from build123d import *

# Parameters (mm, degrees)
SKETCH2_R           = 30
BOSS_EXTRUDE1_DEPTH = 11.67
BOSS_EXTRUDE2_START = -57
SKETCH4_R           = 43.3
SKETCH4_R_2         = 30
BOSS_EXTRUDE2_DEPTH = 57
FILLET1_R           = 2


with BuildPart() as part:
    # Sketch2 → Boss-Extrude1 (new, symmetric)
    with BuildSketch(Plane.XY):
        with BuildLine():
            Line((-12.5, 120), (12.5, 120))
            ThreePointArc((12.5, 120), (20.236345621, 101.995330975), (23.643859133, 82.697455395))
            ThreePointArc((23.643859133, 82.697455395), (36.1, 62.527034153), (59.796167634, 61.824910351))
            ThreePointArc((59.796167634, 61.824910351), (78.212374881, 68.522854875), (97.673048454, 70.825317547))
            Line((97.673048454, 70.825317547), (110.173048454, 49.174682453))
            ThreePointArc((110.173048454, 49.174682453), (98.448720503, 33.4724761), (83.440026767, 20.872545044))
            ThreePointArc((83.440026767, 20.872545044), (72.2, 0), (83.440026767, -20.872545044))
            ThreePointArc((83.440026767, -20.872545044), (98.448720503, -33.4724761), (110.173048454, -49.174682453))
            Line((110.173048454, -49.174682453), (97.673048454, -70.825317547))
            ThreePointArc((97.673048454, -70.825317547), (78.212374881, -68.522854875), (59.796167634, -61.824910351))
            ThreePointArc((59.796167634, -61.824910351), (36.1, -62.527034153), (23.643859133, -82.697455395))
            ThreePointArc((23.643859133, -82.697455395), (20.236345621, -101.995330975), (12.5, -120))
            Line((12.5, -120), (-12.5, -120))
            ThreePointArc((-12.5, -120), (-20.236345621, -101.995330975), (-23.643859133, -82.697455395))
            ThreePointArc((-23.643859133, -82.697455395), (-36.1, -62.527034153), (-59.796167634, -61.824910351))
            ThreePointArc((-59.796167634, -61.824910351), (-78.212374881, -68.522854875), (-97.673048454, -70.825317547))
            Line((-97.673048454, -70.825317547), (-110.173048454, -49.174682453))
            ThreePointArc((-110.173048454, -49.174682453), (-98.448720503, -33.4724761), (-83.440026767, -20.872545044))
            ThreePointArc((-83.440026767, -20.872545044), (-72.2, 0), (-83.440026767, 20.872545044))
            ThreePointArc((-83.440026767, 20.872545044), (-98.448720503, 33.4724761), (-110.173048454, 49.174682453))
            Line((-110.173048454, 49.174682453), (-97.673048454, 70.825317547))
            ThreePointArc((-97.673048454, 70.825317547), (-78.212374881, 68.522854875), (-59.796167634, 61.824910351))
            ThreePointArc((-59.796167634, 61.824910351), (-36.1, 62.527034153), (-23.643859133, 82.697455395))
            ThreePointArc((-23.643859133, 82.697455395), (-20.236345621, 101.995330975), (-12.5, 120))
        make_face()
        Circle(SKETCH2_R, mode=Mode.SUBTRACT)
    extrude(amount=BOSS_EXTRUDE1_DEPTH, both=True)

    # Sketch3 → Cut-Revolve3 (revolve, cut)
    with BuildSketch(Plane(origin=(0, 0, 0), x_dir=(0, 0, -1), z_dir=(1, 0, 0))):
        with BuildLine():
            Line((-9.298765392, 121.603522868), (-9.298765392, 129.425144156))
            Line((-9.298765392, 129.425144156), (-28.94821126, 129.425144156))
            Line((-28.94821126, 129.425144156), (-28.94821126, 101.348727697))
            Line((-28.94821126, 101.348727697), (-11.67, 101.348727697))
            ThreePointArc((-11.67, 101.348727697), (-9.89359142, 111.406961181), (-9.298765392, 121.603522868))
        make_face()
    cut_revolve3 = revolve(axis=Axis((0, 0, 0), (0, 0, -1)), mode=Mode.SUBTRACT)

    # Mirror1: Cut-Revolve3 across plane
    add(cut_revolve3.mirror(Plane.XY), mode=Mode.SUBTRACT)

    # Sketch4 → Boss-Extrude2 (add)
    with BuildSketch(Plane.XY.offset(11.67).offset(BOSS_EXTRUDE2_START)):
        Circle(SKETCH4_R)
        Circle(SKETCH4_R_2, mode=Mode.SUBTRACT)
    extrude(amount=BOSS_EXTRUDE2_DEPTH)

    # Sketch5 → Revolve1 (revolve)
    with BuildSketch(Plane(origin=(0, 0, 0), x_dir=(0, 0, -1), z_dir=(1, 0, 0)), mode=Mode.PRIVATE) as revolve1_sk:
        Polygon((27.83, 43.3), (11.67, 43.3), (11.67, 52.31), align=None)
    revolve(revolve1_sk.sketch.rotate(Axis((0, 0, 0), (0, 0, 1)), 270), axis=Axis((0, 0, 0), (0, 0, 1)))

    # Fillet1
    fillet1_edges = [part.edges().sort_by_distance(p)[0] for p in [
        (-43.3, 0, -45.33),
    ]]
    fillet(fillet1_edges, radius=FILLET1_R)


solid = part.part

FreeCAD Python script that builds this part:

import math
import FreeCAD as App
import Part
import Sketcher
from FreeCAD import Vector
Q = App.Units.Quantity


def edges_at(feature, points):
    """Names of the edges that pass closest to the given points."""
    edges = feature.Shape.Edges
    near = lambda p: min(range(len(edges)), key=lambda i: edges[i].distToShape(Part.Vertex(*p))[0])
    return sorted({f"Edge{near(p) + 1}" for p in points})

doc = App.newDocument("Part")
body = doc.addObject("PartDesign::Body", "Body")

sketch1 = body.newObject("Sketcher::SketchObject", "Sketch")
sketch1.AttachmentSupport = (doc.getObject("XY_Plane"), [""])
sketch1.MapMode = "FlatFace"
sketch1.addGeometry(Part.LineSegment(Vector(12, 120, 0), Vector(-12, 120, 0)), False)
sketch1.addGeometry(Part.ArcOfCircle(Part.Circle(Vector(61, 78, 0), Vector(0, 0, 1), 85), math.radians(150), math.radians(177)), False)
sketch1.addGeometry(Part.ArcOfCircle(Part.Circle(Vector(-49, 84, 0), Vector(0, 0, 1), 25), math.radians(-117), math.radians(-3)), False)
sketch1.addGeometry(Part.ArcOfCircle(Part.Circle(Vector(-98, -14, 0), Vector(0, 0, 1), 85), math.radians(63), math.radians(90)), False)
sketch1.addGeometry(Part.LineSegment(Vector(-98, 71, 0), Vector(-110, 49, 0)), False)
sketch1.addGeometry(Part.ArcOfCircle(Part.Circle(Vector(-37, 92, 0), Vector(0, 0, 1), 85), math.radians(-150), math.radians(-123)), False)
sketch1.addGeometry(Part.ArcOfCircle(Part.Circle(Vector(-97, 0, 0), Vector(0, 0, 1), 25), math.radians(-57), math.radians(57)), False)
sketch1.addGeometry(Part.ArcOfCircle(Part.Circle(Vector(-37, -92, 0), Vector(0, 0, 1), 85), math.radians(123), math.radians(150)), False)
sketch1.addGeometry(Part.LineSegment(Vector(-110, -49, 0), Vector(-98, -71, 0)), False)
sketch1.addGeometry(Part.ArcOfCircle(Part.Circle(Vector(-98, 14, 0), Vector(0, 0, 1), 85), math.radians(-90), math.radians(-63)), False)
sketch1.addGeometry(Part.ArcOfCircle(Part.Circle(Vector(-49, -84, 0), Vector(0, 0, 1), 25), math.radians(3), math.radians(117)), False)
sketch1.addGeometry(Part.ArcOfCircle(Part.Circle(Vector(61, -78, 0), Vector(0, 0, 1), 85), math.radians(-177), math.radians(-150)), False)
sketch1.addGeometry(Part.LineSegment(Vector(-12, -120, 0), Vector(12, -120, 0)), False)
sketch1.addGeometry(Part.ArcOfCircle(Part.Circle(Vector(-61, -78, 0), Vector(0, 0, 1), 85), math.radians(-30), math.radians(-3)), False)
sketch1.addGeometry(Part.ArcOfCircle(Part.Circle(Vector(49, -84, 0), Vector(0, 0, 1), 25), math.radians(63), math.radians(177)), False)
sketch1.addGeometry(Part.ArcOfCircle(Part.Circle(Vector(98, 14, 0), Vector(0, 0, 1), 85), math.radians(-117), math.radians(-90)), False)
sketch1.addGeometry(Part.LineSegment(Vector(98, -71, 0), Vector(110, -49, 0)), False)
sketch1.addGeometry(Part.ArcOfCircle(Part.Circle(Vector(37, -92, 0), Vector(0, 0, 1), 85), math.radians(30), math.radians(57)), False)
sketch1.addGeometry(Part.ArcOfCircle(Part.Circle(Vector(97, 0, 0), Vector(0, 0, 1), 25), math.radians(123), math.radians(237)), False)
sketch1.addGeometry(Part.ArcOfCircle(Part.Circle(Vector(37, 92, 0), Vector(0, 0, 1), 85), math.radians(-57), math.radians(-30)), False)
sketch1.addGeometry(Part.LineSegment(Vector(110, 49, 0), Vector(98, 71, 0)), False)
sketch1.addGeometry(Part.ArcOfCircle(Part.Circle(Vector(98, -14, 0), Vector(0, 0, 1), 85), math.radians(90), math.radians(117)), False)
sketch1.addGeometry(Part.ArcOfCircle(Part.Circle(Vector(49, 84, 0), Vector(0, 0, 1), 25), math.radians(-177), math.radians(-63)), False)
sketch1.addGeometry(Part.ArcOfCircle(Part.Circle(Vector(-61, 78, 0), Vector(0, 0, 1), 85), math.radians(3), math.radians(30)), False)
sketch1.addGeometry(Part.Circle(Vector(0, 0, 0), Vector(0, 0, 1), 30), False)
sketch1.addConstraint(Sketcher.Constraint("Coincident", 0, 2, 1, 1))
sketch1.addConstraint(Sketcher.Constraint("Tangent", 1, 2, 2, 2))
sketch1.addConstraint(Sketcher.Constraint("Tangent", 2, 1, 3, 1))
sketch1.addConstraint(Sketcher.Constraint("Coincident", 3, 2, 4, 1))
sketch1.addConstraint(Sketcher.Constraint("Coincident", 4, 2, 5, 1))
sketch1.addConstraint(Sketcher.Constraint("Tangent", 5, 2, 6, 2))
sketch1.addConstraint(Sketcher.Constraint("Tangent", 6, 1, 7, 1))
sketch1.addConstraint(Sketcher.Constraint("Coincident", 7, 2, 8, 1))
sketch1.addConstraint(Sketcher.Constraint("Coincident", 8, 2, 9, 1))
sketch1.addConstraint(Sketcher.Constraint("Tangent", 9, 2, 10, 2))
sketch1.addConstraint(Sketcher.Constraint("Tangent", 10, 1, 11, 1))
sketch1.addConstraint(Sketcher.Constraint("Coincident", 11, 2, 12, 1))
sketch1.addConstraint(Sketcher.Constraint("Coincident", 12, 2, 13, 1))
sketch1.addConstraint(Sketcher.Constraint("Tangent", 13, 2, 14, 2))
sketch1.addConstraint(Sketcher.Constraint("Tangent", 14, 1, 15, 1))
sketch1.addConstraint(Sketcher.Constraint("Coincident", 15, 2, 16, 1))
sketch1.addConstraint(Sketcher.Constraint("Coincident", 16, 2, 17, 1))
sketch1.addConstraint(Sketcher.Constraint("Tangent", 17, 2, 18, 2))
sketch1.addConstraint(Sketcher.Constraint("Tangent", 18, 1, 19, 1))
sketch1.addConstraint(Sketcher.Constraint("Coincident", 19, 2, 20, 1))
sketch1.addConstraint(Sketcher.Constraint("Coincident", 20, 2, 21, 1))
sketch1.addConstraint(Sketcher.Constraint("Tangent", 21, 2, 22, 2))
sketch1.addConstraint(Sketcher.Constraint("Tangent", 22, 1, 23, 1))
sketch1.addConstraint(Sketcher.Constraint("Coincident", 23, 2, 0, 1))
sketch1.addConstraint(Sketcher.Constraint("Horizontal", 0))
sketch1.addConstraint(Sketcher.Constraint("Horizontal", 12))
sketch1.addConstraint(Sketcher.Constraint("Coincident", 24, 3, -1, 1))
sketch1.addConstraint(Sketcher.Constraint("Equal", 1, 3))
sketch1.addConstraint(Sketcher.Constraint("Equal", 3, 5))
sketch1.addConstraint(Sketcher.Constraint("Equal", 2, 6))
sketch1.addConstraint(Sketcher.Constraint("Equal", 5, 7))
sketch1.addConstraint(Sketcher.Constraint("Equal", 7, 9))
sketch1.addConstraint(Sketcher.Constraint("Equal", 6, 10))
sketch1.addConstraint(Sketcher.Constraint("Equal", 9, 11))
sketch1.addConstraint(Sketcher.Constraint("Equal", 11, 13))
sketch1.addConstraint(Sketcher.Constraint("Equal", 10, 14))
sketch1.addConstraint(Sketcher.Constraint("Equal", 13, 15))
sketch1.addConstraint(Sketcher.Constraint("Equal", 15, 17))
sketch1.addConstraint(Sketcher.Constraint("Equal", 14, 18))
sketch1.addConstraint(Sketcher.Constraint("Equal", 17, 19))
sketch1.addConstraint(Sketcher.Constraint("Equal", 19, 21))
sketch1.addConstraint(Sketcher.Constraint("Equal", 18, 22))
sketch1.addConstraint(Sketcher.Constraint("Equal", 21, 23))
sketch1.addConstraint(Sketcher.Constraint("Symmetric", 1, 3, 13, 3, -1, 1))
sketch1.addConstraint(Sketcher.Constraint("Symmetric", 3, 3, 15, 3, -1, 1))
sketch1.addConstraint(Sketcher.Constraint("Symmetric", 5, 3, 17, 3, -1, 1))
sketch1.addConstraint(Sketcher.Constraint("Symmetric", 7, 3, 19, 3, -1, 1))
sketch1.addConstraint(Sketcher.Constraint("Symmetric", 9, 3, 21, 3, -1, 1))
sketch1.addConstraint(Sketcher.Constraint("Symmetric", 11, 3, 23, 3, -1, 1))
sketch1.addConstraint(Sketcher.Constraint("Symmetric", 11, 3, 13, 3, -2))
sketch1.addConstraint(Sketcher.Constraint("Symmetric", 9, 3, 15, 3, -2))
sketch1.addConstraint(Sketcher.Constraint("Symmetric", 7, 3, 17, 3, -2))
sketch1.addConstraint(Sketcher.Constraint("Parallel", 4, 16))
sketch1.addConstraint(Sketcher.Constraint("Parallel", 8, 20))
sketch1.addConstraint(Sketcher.Constraint("Horizontal", 7, 2, 16, 2))
sketch1.addConstraint(Sketcher.Constraint("Horizontal", 4, 2, 19, 2))
sketch1.addConstraint(Sketcher.Constraint("Vertical", 4, 2, 7, 2))
sketch1.addConstraint(Sketcher.Constraint("Vertical", 3, 2, 8, 2))
sketch1.addConstraint(Sketcher.Constraint("Vertical", 0, 2, 11, 2))
sketch1.addConstraint(Sketcher.Constraint("Diameter", 24, 60.0))
sketch1.addConstraint(Sketcher.Constraint("Radius", 1, 85.0))
sketch1.addConstraint(Sketcher.Constraint("Radius", 2, 25.0))
sketch1.addConstraint(Sketcher.Constraint("DistanceX", 0, 2, 0, 1, 25.0))
sketch1.addConstraint(Sketcher.Constraint("Angle", 4, Q("-120 deg")))
sketch1.addConstraint(Sketcher.Constraint("Distance", 4, 25.0))
sketch1.addConstraint(Sketcher.Constraint("DistanceY", -1, 1, 0, 2, 120.0))
sketch1.addConstraint(Sketcher.Constraint("DistanceX", 2, 3, -1, 1, 48.6))
sketch1.addConstraint(Sketcher.Constraint("DistanceX", 6, 3, -1, 1, 97.2))
sketch1.addConstraint(Sketcher.Constraint("DistanceY", -1, 1, 5, 3, 91.839198))
sketch1.addConstraint(Sketcher.Constraint("DistanceY", 3, 3, 1, 3, 91.839198))
sketch1.addConstraint(Sketcher.Constraint("DistanceY", 9, 3, 2, 3, 70.003199))
pad1 = body.newObject("PartDesign::Pad", "Pad")
pad1.Profile = sketch1
pad1.Length = 23.34
pad1.Midplane = True

sketch2 = body.newObject("Sketcher::SketchObject", "Sketch001")
sketch2.AttachmentSupport = (doc.getObject("YZ_Plane"), [""])
sketch2.MapMode = "FlatFace"
sketch2.addGeometry(Part.LineSegment(Vector(122, 9, 0), Vector(129, 9, 0)), False)
sketch2.addGeometry(Part.LineSegment(Vector(129, 9, 0), Vector(129, 29, 0)), False)
sketch2.addGeometry(Part.LineSegment(Vector(129, 29, 0), Vector(101, 29, 0)), False)
sketch2.addGeometry(Part.LineSegment(Vector(101, 29, 0), Vector(101, 12, 0)), False)
sketch2.addGeometry(Part.ArcOfCircle(Part.Circle(Vector(122, 97, 0), Vector(0, 0, 1), 88), math.radians(-103.35), math.radians(-90)), False)
sketch2.addConstraint(Sketcher.Constraint("Coincident", 0, 2, 1, 1))
sketch2.addConstraint(Sketcher.Constraint("Coincident", 1, 2, 2, 1))
sketch2.addConstraint(Sketcher.Constraint("Coincident", 2, 2, 3, 1))
sketch2.addConstraint(Sketcher.Constraint("Coincident", 3, 2, 4, 1))
sketch2.addConstraint(Sketcher.Constraint("Tangent", 4, 2, 0, 1))
sketch2.addConstraint(Sketcher.Constraint("Horizontal", 0))
sketch2.addConstraint(Sketcher.Constraint("Vertical", 1))
sketch2.addConstraint(Sketcher.Constraint("Horizontal", 2))
sketch2.addConstraint(Sketcher.Constraint("Vertical", 3))
sketch2.addConstraint(Sketcher.Constraint("DistanceY", -1, 1, 3, 2, 11.67))
sketch2.addConstraint(Sketcher.Constraint("Radius", 4, 87.692605))
sketch2.addConstraint(Sketcher.Constraint("DistanceX", 0, 1, 0, 2, 7.821621))
sketch2.addConstraint(Sketcher.Constraint("DistanceY", 3, 2, 3, 1, 17.278211))
sketch2.addConstraint(Sketcher.Constraint("DistanceX", 2, 2, 2, 1, 28.076416))
sketch2.addConstraint(Sketcher.Constraint("DistanceX", -1, 1, 4, 3, 121.603523))
groove = body.newObject("PartDesign::Groove", "Groove")
groove.Profile = sketch2
groove.ReferenceAxis = (sketch2, ["V_Axis"])
groove.Angle = 360
doc.recompute()

mirrored = body.newObject("PartDesign::Mirrored", "Mirrored")
mirrored.Originals = [groove]
mirrored.MirrorPlane = (doc.getObject("XY_Plane"), [""])
body.Tip = mirrored

sketch3 = body.newObject("Sketcher::SketchObject", "Sketch002")
sketch3.AttachmentSupport = (doc.getObject("XY_Plane"), [""])
sketch3.MapMode = "FlatFace"
sketch3.AttachmentOffset = App.Placement(Vector(0, 0, -45.33), App.Rotation())
sketch3.addGeometry(Part.Circle(Vector(0, 0, 0), Vector(0, 0, 1), 43), False)
sketch3.addGeometry(Part.Circle(Vector(0, 0, 0), Vector(0, 0, 1), 30), False)
sketch3.addConstraint(Sketcher.Constraint("Coincident", 0, 3, -1, 1))
sketch3.addConstraint(Sketcher.Constraint("Coincident", 1, 3, -1, 1))
sketch3.addConstraint(Sketcher.Constraint("Diameter", 1, 60.0))
sketch3.addConstraint(Sketcher.Constraint("Diameter", 0, 86.6))
pad2 = body.newObject("PartDesign::Pad", "Pad001")
pad2.Profile = sketch3
pad2.Length = 57

sketch4 = body.newObject("Sketcher::SketchObject", "Sketch003")
sketch4.AttachmentSupport = (doc.getObject("YZ_Plane"), [""])
sketch4.MapMode = "FlatFace"
sketch4.addGeometry(Part.LineSegment(Vector(43, -12, 0), Vector(43, -28, 0)), False)
sketch4.addGeometry(Part.LineSegment(Vector(43, -28, 0), Vector(52, -12, 0)), False)
sketch4.addGeometry(Part.LineSegment(Vector(52, -12, 0), Vector(43, -12, 0)), False)
sketch4.addConstraint(Sketcher.Constraint("Coincident", 0, 2, 1, 1))
sketch4.addConstraint(Sketcher.Constraint("Coincident", 1, 2, 2, 1))
sketch4.addConstraint(Sketcher.Constraint("Coincident", 2, 2, 0, 1))
sketch4.addConstraint(Sketcher.Constraint("Vertical", 0))
sketch4.addConstraint(Sketcher.Constraint("Horizontal", 2))
sketch4.addConstraint(Sketcher.Constraint("DistanceX", 2, 2, 2, 1, 9.01))
sketch4.addConstraint(Sketcher.Constraint("DistanceY", 0, 2, 0, 1, 16.16))
sketch4.addConstraint(Sketcher.Constraint("DistanceX", -1, 1, 0, 2, 43.3))
sketch4.addConstraint(Sketcher.Constraint("DistanceY", 0, 2, -1, 1, 27.83))
revolution = body.newObject("PartDesign::Revolution", "Revolution")
revolution.Profile = sketch4
revolution.ReferenceAxis = (sketch4, ["V_Axis"])
revolution.Angle = 360
doc.recompute()

fillet = body.newObject("PartDesign::Fillet", "Fillet")
fillet.Base = (revolution, edges_at(revolution, [(-43.3, 0, -45.33)]))
fillet.Radius = 2

doc.recompute()
